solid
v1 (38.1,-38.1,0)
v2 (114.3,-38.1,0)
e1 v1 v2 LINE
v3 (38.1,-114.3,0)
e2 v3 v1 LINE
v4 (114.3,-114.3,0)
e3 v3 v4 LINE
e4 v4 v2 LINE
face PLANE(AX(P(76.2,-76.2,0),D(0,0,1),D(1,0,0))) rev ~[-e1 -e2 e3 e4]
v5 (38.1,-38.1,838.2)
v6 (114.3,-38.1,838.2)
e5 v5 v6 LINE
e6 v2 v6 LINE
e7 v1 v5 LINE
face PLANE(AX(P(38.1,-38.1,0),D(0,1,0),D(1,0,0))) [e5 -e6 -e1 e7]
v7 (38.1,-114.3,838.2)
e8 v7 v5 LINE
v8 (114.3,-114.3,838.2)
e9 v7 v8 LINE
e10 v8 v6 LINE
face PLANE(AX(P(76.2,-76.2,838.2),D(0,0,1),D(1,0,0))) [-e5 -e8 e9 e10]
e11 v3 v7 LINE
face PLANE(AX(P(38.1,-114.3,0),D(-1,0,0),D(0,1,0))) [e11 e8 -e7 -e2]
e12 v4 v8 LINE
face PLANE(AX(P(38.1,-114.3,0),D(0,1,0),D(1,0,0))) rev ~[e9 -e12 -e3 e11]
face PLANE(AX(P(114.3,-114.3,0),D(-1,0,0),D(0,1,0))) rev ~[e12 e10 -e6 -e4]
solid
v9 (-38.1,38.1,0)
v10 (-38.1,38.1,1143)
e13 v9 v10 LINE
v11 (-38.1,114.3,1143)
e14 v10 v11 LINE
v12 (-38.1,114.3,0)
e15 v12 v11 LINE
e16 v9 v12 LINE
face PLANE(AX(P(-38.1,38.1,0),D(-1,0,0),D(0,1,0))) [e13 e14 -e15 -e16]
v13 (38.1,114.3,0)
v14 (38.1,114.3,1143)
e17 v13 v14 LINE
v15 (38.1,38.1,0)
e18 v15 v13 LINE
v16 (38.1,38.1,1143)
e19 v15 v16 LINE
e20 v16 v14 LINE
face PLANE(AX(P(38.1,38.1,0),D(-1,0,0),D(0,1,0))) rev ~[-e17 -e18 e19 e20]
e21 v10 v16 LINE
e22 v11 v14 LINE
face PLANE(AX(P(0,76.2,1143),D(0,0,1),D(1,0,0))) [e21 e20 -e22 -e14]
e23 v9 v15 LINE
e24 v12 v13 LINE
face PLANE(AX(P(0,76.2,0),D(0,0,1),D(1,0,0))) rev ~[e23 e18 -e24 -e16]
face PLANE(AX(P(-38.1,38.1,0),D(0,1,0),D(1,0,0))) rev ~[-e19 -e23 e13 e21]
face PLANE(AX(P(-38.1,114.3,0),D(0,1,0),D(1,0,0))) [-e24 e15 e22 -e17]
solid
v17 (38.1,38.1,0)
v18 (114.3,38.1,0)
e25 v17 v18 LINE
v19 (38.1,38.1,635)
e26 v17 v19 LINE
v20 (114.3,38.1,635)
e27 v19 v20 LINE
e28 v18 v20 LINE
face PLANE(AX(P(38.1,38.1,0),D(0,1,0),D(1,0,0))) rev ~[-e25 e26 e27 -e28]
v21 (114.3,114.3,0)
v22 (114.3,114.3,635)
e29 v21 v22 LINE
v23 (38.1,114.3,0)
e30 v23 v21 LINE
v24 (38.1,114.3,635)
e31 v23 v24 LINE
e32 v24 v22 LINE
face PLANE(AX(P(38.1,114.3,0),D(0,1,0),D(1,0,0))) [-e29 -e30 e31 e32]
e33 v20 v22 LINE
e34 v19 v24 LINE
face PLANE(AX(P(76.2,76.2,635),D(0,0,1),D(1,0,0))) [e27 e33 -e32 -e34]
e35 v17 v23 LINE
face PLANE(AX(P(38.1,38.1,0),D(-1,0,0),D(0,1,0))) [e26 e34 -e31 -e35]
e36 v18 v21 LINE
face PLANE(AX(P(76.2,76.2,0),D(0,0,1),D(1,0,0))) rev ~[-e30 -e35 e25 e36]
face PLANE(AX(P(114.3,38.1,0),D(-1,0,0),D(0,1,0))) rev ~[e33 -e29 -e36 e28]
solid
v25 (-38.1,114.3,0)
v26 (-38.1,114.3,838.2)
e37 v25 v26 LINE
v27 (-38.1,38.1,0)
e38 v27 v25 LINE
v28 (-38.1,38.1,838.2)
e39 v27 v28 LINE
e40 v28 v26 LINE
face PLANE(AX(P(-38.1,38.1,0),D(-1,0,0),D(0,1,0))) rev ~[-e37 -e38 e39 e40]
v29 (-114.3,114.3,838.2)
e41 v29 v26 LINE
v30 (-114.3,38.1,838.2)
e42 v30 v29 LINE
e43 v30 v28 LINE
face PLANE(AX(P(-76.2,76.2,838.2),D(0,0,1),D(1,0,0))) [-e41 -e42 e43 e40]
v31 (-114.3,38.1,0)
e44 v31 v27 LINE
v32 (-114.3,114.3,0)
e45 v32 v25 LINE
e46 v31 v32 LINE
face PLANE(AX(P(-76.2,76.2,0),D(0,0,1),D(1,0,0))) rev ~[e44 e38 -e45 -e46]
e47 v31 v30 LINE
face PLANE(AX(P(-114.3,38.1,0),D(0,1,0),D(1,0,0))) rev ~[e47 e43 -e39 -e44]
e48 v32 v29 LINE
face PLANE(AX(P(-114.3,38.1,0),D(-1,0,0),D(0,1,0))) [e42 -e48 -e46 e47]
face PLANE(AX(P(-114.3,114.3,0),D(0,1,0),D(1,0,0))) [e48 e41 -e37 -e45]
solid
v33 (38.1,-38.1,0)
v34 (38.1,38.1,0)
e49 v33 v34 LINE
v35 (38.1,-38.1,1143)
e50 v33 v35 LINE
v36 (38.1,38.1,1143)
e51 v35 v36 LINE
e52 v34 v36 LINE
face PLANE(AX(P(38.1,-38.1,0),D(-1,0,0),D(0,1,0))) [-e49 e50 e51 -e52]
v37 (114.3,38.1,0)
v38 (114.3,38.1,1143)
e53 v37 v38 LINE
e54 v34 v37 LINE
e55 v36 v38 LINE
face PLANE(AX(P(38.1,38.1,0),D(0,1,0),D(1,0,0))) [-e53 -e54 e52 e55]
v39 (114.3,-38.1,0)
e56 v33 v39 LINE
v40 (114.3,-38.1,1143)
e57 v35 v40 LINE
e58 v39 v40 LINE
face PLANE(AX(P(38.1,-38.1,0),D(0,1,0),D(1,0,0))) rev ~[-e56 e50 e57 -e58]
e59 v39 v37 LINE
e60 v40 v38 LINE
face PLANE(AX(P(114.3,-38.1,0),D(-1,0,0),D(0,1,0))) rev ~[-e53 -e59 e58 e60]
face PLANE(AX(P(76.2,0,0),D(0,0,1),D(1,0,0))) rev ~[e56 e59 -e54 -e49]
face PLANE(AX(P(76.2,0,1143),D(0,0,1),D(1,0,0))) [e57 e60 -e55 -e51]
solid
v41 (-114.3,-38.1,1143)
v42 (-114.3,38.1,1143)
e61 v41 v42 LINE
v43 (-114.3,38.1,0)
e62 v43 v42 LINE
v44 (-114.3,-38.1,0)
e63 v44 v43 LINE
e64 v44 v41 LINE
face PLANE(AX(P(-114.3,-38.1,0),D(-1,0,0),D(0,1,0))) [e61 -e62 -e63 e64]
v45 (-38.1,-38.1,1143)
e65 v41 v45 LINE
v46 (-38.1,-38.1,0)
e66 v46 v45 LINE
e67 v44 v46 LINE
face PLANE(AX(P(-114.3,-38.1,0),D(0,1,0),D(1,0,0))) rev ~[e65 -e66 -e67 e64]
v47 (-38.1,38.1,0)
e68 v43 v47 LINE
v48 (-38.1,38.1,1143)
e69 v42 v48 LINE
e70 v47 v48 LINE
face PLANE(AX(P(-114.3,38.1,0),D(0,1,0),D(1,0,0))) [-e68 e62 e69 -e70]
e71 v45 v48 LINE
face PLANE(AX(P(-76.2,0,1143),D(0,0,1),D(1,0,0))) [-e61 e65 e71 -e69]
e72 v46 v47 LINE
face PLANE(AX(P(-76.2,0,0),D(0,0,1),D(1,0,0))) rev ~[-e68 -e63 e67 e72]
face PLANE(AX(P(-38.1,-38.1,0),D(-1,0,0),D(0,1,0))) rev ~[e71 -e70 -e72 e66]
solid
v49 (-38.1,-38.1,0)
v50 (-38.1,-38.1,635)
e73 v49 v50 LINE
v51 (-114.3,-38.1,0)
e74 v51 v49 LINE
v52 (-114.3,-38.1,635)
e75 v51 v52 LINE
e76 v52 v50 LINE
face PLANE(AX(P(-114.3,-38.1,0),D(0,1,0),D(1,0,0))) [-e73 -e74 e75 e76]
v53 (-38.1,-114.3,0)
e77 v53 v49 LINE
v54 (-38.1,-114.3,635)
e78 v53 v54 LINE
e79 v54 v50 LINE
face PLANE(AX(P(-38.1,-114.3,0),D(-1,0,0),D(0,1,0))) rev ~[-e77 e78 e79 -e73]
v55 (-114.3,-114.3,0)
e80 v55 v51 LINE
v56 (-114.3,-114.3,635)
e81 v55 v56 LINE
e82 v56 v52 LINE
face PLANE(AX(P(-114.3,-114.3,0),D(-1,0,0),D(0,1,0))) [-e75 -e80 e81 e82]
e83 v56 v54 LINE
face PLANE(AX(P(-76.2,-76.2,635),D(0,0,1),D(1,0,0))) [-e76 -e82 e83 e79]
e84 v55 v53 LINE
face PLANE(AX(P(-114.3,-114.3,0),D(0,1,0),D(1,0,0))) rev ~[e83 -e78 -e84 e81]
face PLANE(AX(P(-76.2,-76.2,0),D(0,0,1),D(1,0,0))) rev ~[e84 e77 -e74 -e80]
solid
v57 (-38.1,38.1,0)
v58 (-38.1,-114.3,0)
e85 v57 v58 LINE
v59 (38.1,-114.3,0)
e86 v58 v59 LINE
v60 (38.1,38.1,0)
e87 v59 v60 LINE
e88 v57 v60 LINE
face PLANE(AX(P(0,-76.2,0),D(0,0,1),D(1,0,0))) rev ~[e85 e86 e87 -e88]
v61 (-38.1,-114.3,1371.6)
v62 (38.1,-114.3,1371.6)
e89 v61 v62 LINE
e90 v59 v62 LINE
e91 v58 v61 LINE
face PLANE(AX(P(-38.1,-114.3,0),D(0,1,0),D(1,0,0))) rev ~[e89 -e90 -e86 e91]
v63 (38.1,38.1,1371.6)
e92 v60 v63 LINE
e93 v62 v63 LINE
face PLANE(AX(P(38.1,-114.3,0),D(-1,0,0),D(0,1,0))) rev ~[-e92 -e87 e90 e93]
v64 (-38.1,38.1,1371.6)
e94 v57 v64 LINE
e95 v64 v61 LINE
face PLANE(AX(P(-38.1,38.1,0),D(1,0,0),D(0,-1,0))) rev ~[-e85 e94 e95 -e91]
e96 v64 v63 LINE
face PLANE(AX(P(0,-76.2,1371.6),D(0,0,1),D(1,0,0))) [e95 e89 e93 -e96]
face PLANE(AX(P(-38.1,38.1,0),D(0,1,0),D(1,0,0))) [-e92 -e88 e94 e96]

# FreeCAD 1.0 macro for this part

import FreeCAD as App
import Part
import Sketcher

V = App.Vector
Q = App.Units.Quantity


def add_polygon(sketch, points):
    """Adds a closed chain of lines whose ends are joined by coincident constraints."""
    first, n = sketch.GeometryCount, len(points)
    for a, b in zip(points, points[1:] + points[:1]):
        sketch.addGeometry(Part.LineSegment(App.Vector(*a, 0), App.Vector(*b, 0)), False)
    for i in range(n):
        sketch.addConstraint(Sketcher.Constraint("Coincident", first + i, 2, first + (i + 1) % n, 1))

doc = App.newDocument("Part")
body = doc.addObject("PartDesign::Body", "Body")
body.AllowCompound = True

sketch1 = body.newObject("Sketcher::SketchObject", "Sketch")
sketch1.AttachmentSupport = (doc.getObject("XY_Plane"), [""])
sketch1.MapMode = "FlatFace"
add_polygon(sketch1, [(38.1, 114.3), (38.1, 38.1), (114.3, 38.1), (114.3, 114.3)])
add_polygon(sketch1, [(-114.3, -38.1), (-114.3, -114.3), (-38.1, -114.3), (-38.1, -38.1)])
sketch1.addConstraint(Sketcher.Constraint("Vertical", 0))
sketch1.addConstraint(Sketcher.Constraint("Horizontal", 1))
sketch1.addConstraint(Sketcher.Constraint("Vertical", 2))
sketch1.addConstraint(Sketcher.Constraint("Horizontal", 3))
sketch1.addConstraint(Sketcher.Constraint("Vertical", 4))
sketch1.addConstraint(Sketcher.Constraint("Horizontal", 5))
sketch1.addConstraint(Sketcher.Constraint("Vertical", 6))
sketch1.addConstraint(Sketcher.Constraint("Horizontal", 7))
sketch1.addConstraint(Sketcher.Constraint("Symmetric", 2, 2, 4, 2, -1, 1))
sketch1.addConstraint(Sketcher.Constraint("Symmetric", 0, 2, 6, 2, -1, 1))
sketch1.addConstraint(Sketcher.Constraint("Equal", 7, 0))
sketch1.addConstraint(Sketcher.Constraint("DistanceX", 1, 1, 1, 2, Q("3 in")))
sketch1.addConstraint(Sketcher.Constraint("DistanceX", 4, 2, 0, 2, Q("6 in")))
sketch1.addConstraint(Sketcher.Constraint("DistanceY", 4, 2, 0, 2, Q("6 in")))
pad1 = body.newObject("PartDesign::Pad", "Pad")
pad1.Profile = sketch1
pad1.Length = Q("25 in")
body2 = doc.addObject("PartDesign::Body", "Body001")
body2.AllowCompound = True

sketch2 = body2.newObject("Sketcher::SketchObject", "Sketch001")
sketch2.AttachmentSupport = (doc.getObject("XY_Plane001"), [""])
sketch2.MapMode = "FlatFace"
add_polygon(sketch2, [(-114.3, 114.3), (-114.3, 38.1), (-38.1, 38.1), (-38.1, 114.3)])
add_polygon(sketch2, [(38.1, -38.1), (38.1, -114.3), (114.3, -114.3), (114.3, -38.1)])
sketch2.addConstraint(Sketcher.Constraint("Vertical", 0))
sketch2.addConstraint(Sketcher.Constraint("Horizontal", 1))
sketch2.addConstraint(Sketcher.Constraint("Vertical", 2))
sketch2.addConstraint(Sketcher.Constraint("Horizontal", 3))
sketch2.addConstraint(Sketcher.Constraint("Vertical", 4))
sketch2.addConstraint(Sketcher.Constraint("Horizontal", 5))
sketch2.addConstraint(Sketcher.Constraint("Vertical", 6))
sketch2.addConstraint(Sketcher.Constraint("Horizontal", 7))
sketch2.addConstraint(Sketcher.Constraint("Symmetric", 2, 2, 4, 2, -1, 1))
sketch2.addConstraint(Sketcher.Constraint("Symmetric", 0, 2, 6, 2, -1, 1))
sketch2.addConstraint(Sketcher.Constraint("Equal", 7, 0))
sketch2.addConstraint(Sketcher.Constraint("DistanceX", 1, 1, 1, 2, Q("3 in")))
sketch2.addConstraint(Sketcher.Constraint("DistanceX", 1, 2, 4, 2, Q("3 in")))
sketch2.addConstraint(Sketcher.Constraint("DistanceY", 4, 2, 1, 2, Q("6 in")))
pad2 = body2.newObject("PartDesign::Pad", "Pad001")
pad2.Profile = sketch2
pad2.Length = Q("33 in")
body3 = doc.addObject("PartDesign::Body", "Body002")
body3.AllowCompound = True

sketch3 = body3.newObject("Sketcher::SketchObject", "Sketch002")
sketch3.AttachmentSupport = (doc.getObject("XY_Plane002"), [""])
sketch3.MapMode = "FlatFace"
add_polygon(sketch3, [(38.1, 38.1), (38.1, -38.1), (114.3, -38.1), (114.3, 38.1)])
add_polygon(sketch3, [(-114.3, 38.1), (-114.3, -38.1), (-38.1, -38.1), (-38.1, 38.1)])
add_polygon(sketch3, [(-38.1, 114.3), (-38.1, 38.1), (38.1, 38.1), (38.1, 114.3)])
sketch3.addConstraint(Sketcher.Constraint("Vertical", 0))
sketch3.addConstraint(Sketcher.Constraint("Horizontal", 1))
sketch3.addConstraint(Sketcher.Constraint("Vertical", 2))
sketch3.addConstraint(Sketcher.Constraint("Horizontal", 3))
sketch3.addConstraint(Sketcher.Constraint("Vertical", 4))
sketch3.addConstraint(Sketcher.Constraint("Horizontal", 5))
sketch3.addConstraint(Sketcher.Constraint("Vertical", 6))
sketch3.addConstraint(Sketcher.Constraint("Horizontal", 7))
sketch3.addConstraint(Sketcher.Constraint("Vertical", 8))
sketch3.addConstraint(Sketcher.Constraint("Horizontal", 9))
sketch3.addConstraint(Sketcher.Constraint("Vertical", 10))
sketch3.addConstraint(Sketcher.Constraint("Horizontal", 11))
sketch3.addConstraint(Sketcher.Constraint("Coincident", 8, 2, 6, 2))
sketch3.addConstraint(Sketcher.Constraint("Coincident", 9, 2, 3, 2))
sketch3.addConstraint(Sketcher.Constraint("Symmetric", 2, 2, 4, 2, -1, 1))
sketch3.addConstraint(Sketcher.Constraint("Symmetric", 0, 2, 6, 2, -1, 1))
sketch3.addConstraint(Sketcher.Constraint("Equal", 7, 9))
sketch3.addConstraint(Sketcher.Constraint("Equal", 11, 0))
sketch3.addConstraint(Sketcher.Constraint("Equal", 6, 8))
sketch3.addConstraint(Sketcher.Constraint("DistanceX", 1, 1, 1, 2, Q("3 in")))
pad3 = body3.newObject("PartDesign::Pad", "Pad002")
pad3.Profile = sketch3
pad3.Length = Q("45 in")
body4 = doc.addObject("PartDesign::Body", "Body003")

sketch4 = body4.newObject("Sketcher::SketchObject", "Sketch003")
sketch4.AttachmentSupport = (doc.getObject("XY_Plane003"), [""])
sketch4.MapMode = "FlatFace"
add_polygon(sketch4, [(-38.1, -114.3), (38.1, -114.3), (38.1, 38.1), (-38.1, 38.1)])
sketch4.addConstraint(Sketcher.Constraint("Horizontal", 0))
sketch4.addConstraint(Sketcher.Constraint("Vertical", 1))
sketch4.addConstraint(Sketcher.Constraint("Horizontal", 2))
sketch4.addConstraint(Sketcher.Constraint("Vertical", 3))
sketch4.addConstraint(Sketcher.Constraint("DistanceX", 0, 1, 0, 2, Q("3 in")))
sketch4.addConstraint(Sketcher.Constraint("DistanceY", 1, 1, 1, 2, Q("6 in")))
sketch4.addConstraint(Sketcher.Constraint("DistanceX", -1, 1, 0, 2, Q("1.5 in")))
sketch4.addConstraint(Sketcher.Constraint("DistanceY", 0, 2, -1, 1, Q("4.5 in")))
pad4 = body4.newObject("PartDesign::Pad", "Pad003")
pad4.Profile = sketch4
pad4.Length = Q("54 in")

doc.recompute()
